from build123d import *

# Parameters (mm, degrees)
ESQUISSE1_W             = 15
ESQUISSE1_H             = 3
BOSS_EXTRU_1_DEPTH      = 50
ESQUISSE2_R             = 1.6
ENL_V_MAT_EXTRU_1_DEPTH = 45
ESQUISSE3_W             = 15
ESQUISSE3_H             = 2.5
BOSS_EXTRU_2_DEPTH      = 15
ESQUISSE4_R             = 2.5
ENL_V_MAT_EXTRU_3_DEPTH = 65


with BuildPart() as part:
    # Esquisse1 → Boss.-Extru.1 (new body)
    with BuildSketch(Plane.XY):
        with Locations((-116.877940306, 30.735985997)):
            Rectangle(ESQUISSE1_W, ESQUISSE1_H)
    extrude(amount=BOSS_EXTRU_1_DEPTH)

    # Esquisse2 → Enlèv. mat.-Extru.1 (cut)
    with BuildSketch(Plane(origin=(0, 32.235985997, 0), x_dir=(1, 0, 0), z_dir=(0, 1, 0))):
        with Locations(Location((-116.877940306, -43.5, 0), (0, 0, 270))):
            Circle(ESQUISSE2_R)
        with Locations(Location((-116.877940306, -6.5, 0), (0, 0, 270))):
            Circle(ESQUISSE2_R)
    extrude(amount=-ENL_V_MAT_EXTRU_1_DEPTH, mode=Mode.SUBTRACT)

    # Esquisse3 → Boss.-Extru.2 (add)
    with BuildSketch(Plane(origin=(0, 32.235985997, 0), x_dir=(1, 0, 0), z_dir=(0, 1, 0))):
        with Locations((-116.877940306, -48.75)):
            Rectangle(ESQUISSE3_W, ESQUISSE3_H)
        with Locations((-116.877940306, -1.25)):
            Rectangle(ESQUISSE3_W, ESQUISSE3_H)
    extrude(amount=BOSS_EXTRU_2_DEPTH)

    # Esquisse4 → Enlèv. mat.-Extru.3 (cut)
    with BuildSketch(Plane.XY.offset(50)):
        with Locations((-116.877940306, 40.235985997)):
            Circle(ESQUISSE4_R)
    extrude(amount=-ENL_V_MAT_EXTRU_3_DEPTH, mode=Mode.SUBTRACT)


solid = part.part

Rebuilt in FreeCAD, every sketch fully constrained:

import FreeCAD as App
import Part
import Sketcher
Q = App.Units.Quantity

doc = App.newDocument("Part")
params = doc.addObject("Spreadsheet::Sheet", "Params")
for row, (alias, value) in enumerate([
    ("sketch1_width", "15 mm"),
    ("sketch1_height", "3 mm"),
    ("pad1_length", "50 mm"),
    ("sketch2_diameter", "3.2 mm"),
    ("pocket1_length", "45 mm"),
    ("sketch3_width", "15 mm"),
    ("sketch3_height", "2.5 mm"),
    ("pad2_length", "15 mm"),
    ("sketch4_diameter", "5 mm"),
    ("pocket2_length", "65 mm"),
], start=1):
    params.set(f"A{row}", alias)
    params.set(f"B{row}", "=" + value)
    params.setAlias(f"B{row}", alias)

body = doc.addObject("PartDesign::Body", "Body")

# Sketch on XY plane
sketch1 = body.newObject("Sketcher::SketchObject", "Sketch")
sketch1.AttachmentSupport = (doc.getObject("XY_Plane"), [""])
sketch1.MapMode = "FlatFace"
sketch1.addGeometry([
    Part.LineSegment(App.Vector(-124.4, 32.2, 0), App.Vector(-124.4, 29.2, 0)),
    Part.LineSegment(App.Vector(-124.4, 29.2, 0), App.Vector(-109.4, 29.2, 0)),
    Part.LineSegment(App.Vector(-109.4, 29.2, 0), App.Vector(-109.4, 32.2, 0)),
    Part.LineSegment(App.Vector(-109.4, 32.2, 0), App.Vector(-124.4, 32.2, 0)),
], False)
sketch1.addConstraint([
    Sketcher.Constraint("Coincident", 0, 2, 1, 1),
    Sketcher.Constraint("Coincident", 1, 2, 2, 1),
    Sketcher.Constraint("Coincident", 2, 2, 3, 1),
    Sketcher.Constraint("Coincident", 3, 2, 0, 1),
    Sketcher.Constraint("Vertical", 0),
    Sketcher.Constraint("Horizontal", 1),
    Sketcher.Constraint("Vertical", 2),
    Sketcher.Constraint("Horizontal", 3),
    Sketcher.Constraint("DistanceX", 1, 1, 1, 2, Q("15 mm")),
    Sketcher.Constraint("DistanceY", 0, 2, 0, 1, Q("3 mm")),
    Sketcher.Constraint("DistanceX", 0, 2, -1, 1, Q("124.37794 mm")),
    Sketcher.Constraint("DistanceY", -1, 1, 0, 2, Q("29.235986 mm")),
])
sketch1.setExpression("Constraints[8]", "Params.sketch1_width")
sketch1.setExpression("Constraints[9]", "Params.sketch1_height")
pad1 = body.newObject("PartDesign::Pad", "Pad")
pad1.Profile = sketch1
pad1.setExpression("Length", "Params.pad1_length")

# Sketch on XZ plane
sketch2 = body.newObject("Sketcher::SketchObject", "Sketch001")
sketch2.AttachmentSupport = (doc.getObject("XZ_Plane"), [""])
sketch2.MapMode = "FlatFace"
sketch2.AttachmentOffset = App.Placement(App.Vector(0, 0, -32.235986), App.Rotation())
sketch2.addGeometry([
    Part.Circle(App.Vector(-116.9, 43.5, 0), App.Vector(0, 0, 1), 1.6),
    Part.Circle(App.Vector(-116.9, 6.5, 0), App.Vector(0, 0, 1), 1.6),
], False)
sketch2.addConstraint([
    Sketcher.Constraint("Equal", 0, 1),
    Sketcher.Constraint("Vertical", 0, 3, 1, 3),
    Sketcher.Constraint("Diameter", 0, Q("3.2 mm")),
    Sketcher.Constraint("DistanceY", 1, 3, 0, 3, Q("37 mm")),
    Sketcher.Constraint("DistanceY", -1, 1, 0, 3, Q("43.5 mm")),
    Sketcher.Constraint("DistanceX", 0, 3, -1, 1, Q("116.87794 mm")),
])
sketch2.setExpression("Constraints[2]", "Params.sketch2_diameter")
pocket1 = body.newObject("PartDesign::Pocket", "Pocket")
pocket1.Profile = sketch2
pocket1.setExpression("Length", "Params.pocket1_length")
pocket1.Reversed = True

# Sketch on XZ plane
sketch3 = body.newObject("Sketcher::SketchObject", "Sketch002")
sketch3.AttachmentSupport = (doc.getObject("XZ_Plane"), [""])
sketch3.MapMode = "FlatFace"
sketch3.AttachmentOffset = App.Placement(App.Vector(0, 0, -32.235986), App.Rotation())
sketch3.addGeometry([
    Part.LineSegment(App.Vector(-124.4, 47.5, 0), App.Vector(-124.4, 50, 0)),  # 0
    Part.LineSegment(App.Vector(-124.4, 50, 0), App.Vector(-109.4, 50, 0)),  # 1
    Part.LineSegment(App.Vector(-109.4, 50, 0), App.Vector(-109.4, 47.5, 0)),  # 2
    Part.LineSegment(App.Vector(-109.4, 47.5, 0), App.Vector(-124.4, 47.5, 0)),  # 3
    Part.LineSegment(App.Vector(-124.4, 0, 0), App.Vector(-124.4, 2.5, 0)),  # 4
    Part.LineSegment(App.Vector(-124.4, 2.5, 0), App.Vector(-109.4, 2.5, 0)),  # 5
    Part.LineSegment(App.Vector(-109.4, 2.5, 0), App.Vector(-109.4, 0, 0)),  # 6
    Part.LineSegment(App.Vector(-109.4, 0, 0), App.Vector(-124.4, 0, 0)),  # 7
], False)
sketch3.addConstraint([
    Sketcher.Constraint("Coincident", 0, 2, 1, 1),
    Sketcher.Constraint("Coincident", 1, 2, 2, 1),
    Sketcher.Constraint("Coincident", 2, 2, 3, 1),
    Sketcher.Constraint("Coincident", 3, 2, 0, 1),
    Sketcher.Constraint("Coincident", 4, 2, 5, 1),
    Sketcher.Constraint("Coincident", 5, 2, 6, 1),
    Sketcher.Constraint("Coincident", 6, 2, 7, 1),
    Sketcher.Constraint("Coincident", 7, 2, 4, 1),
    Sketcher.Constraint("Vertical", 0),
    Sketcher.Constraint("Horizontal", 1),
    Sketcher.Constraint("Vertical", 2),
    Sketcher.Constraint("Horizontal", 3),
    Sketcher.Constraint("Vertical", 4),
    Sketcher.Constraint("Horizontal", 5),
    Sketcher.Constraint("Vertical", 6),
    Sketcher.Constraint("Horizontal", 7),
    Sketcher.Constraint("PointOnObject", 6, 2, -1),
    Sketcher.Constraint("Vertical", 3, 2, 4, 2),
    Sketcher.Constraint("Vertical", 2, 2, 5, 2),
    Sketcher.Constraint("Equal", 2, 4),
    Sketcher.Constraint("DistanceX", 1, 1, 1, 2, Q("15 mm")),
    Sketcher.Constraint("DistanceY", 0, 1, 0, 2, Q("2.5 mm")),
    Sketcher.Constraint("DistanceY", -1, 1, 0, 2, Q("50 mm")),
    Sketcher.Constraint("DistanceX", 0, 2, -1, 1, Q("124.37794 mm")),
])
sketch3.setExpression("Constraints[20]", "Params.sketch3_width")
sketch3.setExpression("Constraints[21]", "Params.sketch3_height")
pad2 = body.newObject("PartDesign::Pad", "Pad001")
pad2.Profile = sketch3
pad2.setExpression("Length", "Params.pad2_length")
pad2.Reversed = True

# Sketch on XY plane
sketch4 = body.newObject("Sketcher::SketchObject", "Sketch003")
sketch4.AttachmentSupport = (doc.getObject("XY_Plane"), [""])
sketch4.MapMode = "FlatFace"
sketch4.AttachmentOffset = App.Placement(App.Vector(0, 0, 50), App.Rotation())
sketch4.addGeometry(Part.Circle(App.Vector(-116.9, 40.2, 0), App.Vector(0, 0, 1), 2.5), False)
sketch4.addConstraint([
    Sketcher.Constraint("Diameter", 0, Q("5 mm")),
    Sketcher.Constraint("DistanceX", 0, 3, -1, 1, Q("116.87794 mm")),
    Sketcher.Constraint("DistanceY", -1, 1, 0, 3, Q("40.235986 mm")),
])
sketch4.setExpression("Constraints[0]", "Params.sketch4_diameter")
pocket2 = body.newObject("PartDesign::Pocket", "Pocket001")
pocket2.Profile = sketch4
pocket2.setExpression("Length", "Params.pocket2_length")

doc.recompute()
